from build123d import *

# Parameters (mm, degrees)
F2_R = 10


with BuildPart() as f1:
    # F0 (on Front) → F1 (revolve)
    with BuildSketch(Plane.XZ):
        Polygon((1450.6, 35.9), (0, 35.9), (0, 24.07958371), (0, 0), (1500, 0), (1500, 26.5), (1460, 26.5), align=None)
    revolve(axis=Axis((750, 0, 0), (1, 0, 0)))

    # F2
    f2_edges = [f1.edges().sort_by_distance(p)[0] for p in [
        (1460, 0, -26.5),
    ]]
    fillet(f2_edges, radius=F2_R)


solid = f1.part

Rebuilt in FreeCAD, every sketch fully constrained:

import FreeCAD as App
import Part
import Sketcher
from FreeCAD import Vector
Q = App.Units.Quantity


def edges_at(feature, points):
    """Names of the edges that pass closest to the given points."""
    edges = feature.Shape.Edges
    near = lambda p: min(range(len(edges)), key=lambda i: edges[i].distToShape(Part.Vertex(*p))[0])
    return sorted({f"Edge{near(p) + 1}" for p in points})

doc = App.newDocument("Part")
params = doc.addObject("Spreadsheet::Sheet", "Params")
for row, (alias, value) in enumerate([
    ("sketch1_width", "1500 mm"),
    ("sketch1_width2", "40 mm"),
    ("sketch1_width3", "1450.6 mm"),
    ("sketch1_height", "35.9 mm"),
    ("revolution_angle", "360 deg"),
    ("fillet_radius", "10 mm"),
], start=1):
    params.set(f"A{row}", alias)
    params.set(f"B{row}", "=" + value)
    params.setAlias(f"B{row}", alias)

body = doc.addObject("PartDesign::Body", "Body")

sketch1 = doc.addObject("Sketcher::SketchObject", "Sketch")
body.addObject(sketch1)
sketch1.AttachmentSupport = (doc.XZ_Plane, [""])
sketch1.MapMode = "FlatFace"
sketch1.addGeometry(Part.LineSegment(Vector(1451, 36, 0), Vector(0, 36, 0)), False)
sketch1.addGeometry(Part.LineSegment(Vector(0, 36, 0), Vector(0, 0, 0)), False)
sketch1.addGeometry(Part.LineSegment(Vector(0, 0, 0), Vector(1500, 0, 0)), False)
sketch1.addGeometry(Part.LineSegment(Vector(1500, 0, 0), Vector(1500, 26, 0)), False)
sketch1.addGeometry(Part.LineSegment(Vector(1500, 26, 0), Vector(1460, 26, 0)), False)
sketch1.addGeometry(Part.LineSegment(Vector(1460, 26, 0), Vector(1451, 36, 0)), False)
sketch1.addConstraint(Sketcher.Constraint("Coincident", 0, 2, 1, 1))
sketch1.addConstraint(Sketcher.Constraint("Coincident", 1, 2, 2, 1))
sketch1.addConstraint(Sketcher.Constraint("Coincident", 2, 2, 3, 1))
sketch1.addConstraint(Sketcher.Constraint("Coincident", 3, 2, 4, 1))
sketch1.addConstraint(Sketcher.Constraint("Coincident", 4, 2, 5, 1))
sketch1.addConstraint(Sketcher.Constraint("Coincident", 5, 2, 0, 1))
sketch1.addConstraint(Sketcher.Constraint("Horizontal", 0))
sketch1.addConstraint(Sketcher.Constraint("Vertical", 1))
sketch1.addConstraint(Sketcher.Constraint("Horizontal", 2))
sketch1.addConstraint(Sketcher.Constraint("Vertical", 3))
sketch1.addConstraint(Sketcher.Constraint("Horizontal", 4))
sketch1.addConstraint(Sketcher.Constraint("Coincident", 1, 2, -1, 1))
sketch1.addConstraint(Sketcher.Constraint("DistanceX", 2, 1, 2, 2, 1500.0))
sketch1.addConstraint(Sketcher.Constraint("DistanceX", 4, 2, 4, 1, 40.0))
sketch1.addConstraint(Sketcher.Constraint("Angle", 5, Q("135 deg")))
sketch1.addConstraint(Sketcher.Constraint("DistanceX", 0, 2, 0, 1, 1450.6))
sketch1.addConstraint(Sketcher.Constraint("DistanceY", 1, 2, 1, 1, 35.9))
sketch1.setExpression("Constraints[12]", "Params.sketch1_width")
sketch1.setExpression("Constraints[13]", "Params.sketch1_width2")
sketch1.setExpression("Constraints[15]", "Params.sketch1_width3")
sketch1.setExpression("Constraints[16]", "Params.sketch1_height")
revolution = doc.addObject("PartDesign::Revolution", "Revolution")
body.addObject(revolution)
revolution.Profile = sketch1
revolution.ReferenceAxis = (sketch1, ["H_Axis"])
revolution.setExpression("Angle", "Params.revolution_angle")
doc.recompute()

fillet = doc.addObject("PartDesign::Fillet", "Fillet")
body.addObject(fillet)
fillet.Base = (revolution, edges_at(revolution, [(1460, 0, -26.5)]))
fillet.setExpression("Radius", "Params.fillet_radius")

doc.recompute()
